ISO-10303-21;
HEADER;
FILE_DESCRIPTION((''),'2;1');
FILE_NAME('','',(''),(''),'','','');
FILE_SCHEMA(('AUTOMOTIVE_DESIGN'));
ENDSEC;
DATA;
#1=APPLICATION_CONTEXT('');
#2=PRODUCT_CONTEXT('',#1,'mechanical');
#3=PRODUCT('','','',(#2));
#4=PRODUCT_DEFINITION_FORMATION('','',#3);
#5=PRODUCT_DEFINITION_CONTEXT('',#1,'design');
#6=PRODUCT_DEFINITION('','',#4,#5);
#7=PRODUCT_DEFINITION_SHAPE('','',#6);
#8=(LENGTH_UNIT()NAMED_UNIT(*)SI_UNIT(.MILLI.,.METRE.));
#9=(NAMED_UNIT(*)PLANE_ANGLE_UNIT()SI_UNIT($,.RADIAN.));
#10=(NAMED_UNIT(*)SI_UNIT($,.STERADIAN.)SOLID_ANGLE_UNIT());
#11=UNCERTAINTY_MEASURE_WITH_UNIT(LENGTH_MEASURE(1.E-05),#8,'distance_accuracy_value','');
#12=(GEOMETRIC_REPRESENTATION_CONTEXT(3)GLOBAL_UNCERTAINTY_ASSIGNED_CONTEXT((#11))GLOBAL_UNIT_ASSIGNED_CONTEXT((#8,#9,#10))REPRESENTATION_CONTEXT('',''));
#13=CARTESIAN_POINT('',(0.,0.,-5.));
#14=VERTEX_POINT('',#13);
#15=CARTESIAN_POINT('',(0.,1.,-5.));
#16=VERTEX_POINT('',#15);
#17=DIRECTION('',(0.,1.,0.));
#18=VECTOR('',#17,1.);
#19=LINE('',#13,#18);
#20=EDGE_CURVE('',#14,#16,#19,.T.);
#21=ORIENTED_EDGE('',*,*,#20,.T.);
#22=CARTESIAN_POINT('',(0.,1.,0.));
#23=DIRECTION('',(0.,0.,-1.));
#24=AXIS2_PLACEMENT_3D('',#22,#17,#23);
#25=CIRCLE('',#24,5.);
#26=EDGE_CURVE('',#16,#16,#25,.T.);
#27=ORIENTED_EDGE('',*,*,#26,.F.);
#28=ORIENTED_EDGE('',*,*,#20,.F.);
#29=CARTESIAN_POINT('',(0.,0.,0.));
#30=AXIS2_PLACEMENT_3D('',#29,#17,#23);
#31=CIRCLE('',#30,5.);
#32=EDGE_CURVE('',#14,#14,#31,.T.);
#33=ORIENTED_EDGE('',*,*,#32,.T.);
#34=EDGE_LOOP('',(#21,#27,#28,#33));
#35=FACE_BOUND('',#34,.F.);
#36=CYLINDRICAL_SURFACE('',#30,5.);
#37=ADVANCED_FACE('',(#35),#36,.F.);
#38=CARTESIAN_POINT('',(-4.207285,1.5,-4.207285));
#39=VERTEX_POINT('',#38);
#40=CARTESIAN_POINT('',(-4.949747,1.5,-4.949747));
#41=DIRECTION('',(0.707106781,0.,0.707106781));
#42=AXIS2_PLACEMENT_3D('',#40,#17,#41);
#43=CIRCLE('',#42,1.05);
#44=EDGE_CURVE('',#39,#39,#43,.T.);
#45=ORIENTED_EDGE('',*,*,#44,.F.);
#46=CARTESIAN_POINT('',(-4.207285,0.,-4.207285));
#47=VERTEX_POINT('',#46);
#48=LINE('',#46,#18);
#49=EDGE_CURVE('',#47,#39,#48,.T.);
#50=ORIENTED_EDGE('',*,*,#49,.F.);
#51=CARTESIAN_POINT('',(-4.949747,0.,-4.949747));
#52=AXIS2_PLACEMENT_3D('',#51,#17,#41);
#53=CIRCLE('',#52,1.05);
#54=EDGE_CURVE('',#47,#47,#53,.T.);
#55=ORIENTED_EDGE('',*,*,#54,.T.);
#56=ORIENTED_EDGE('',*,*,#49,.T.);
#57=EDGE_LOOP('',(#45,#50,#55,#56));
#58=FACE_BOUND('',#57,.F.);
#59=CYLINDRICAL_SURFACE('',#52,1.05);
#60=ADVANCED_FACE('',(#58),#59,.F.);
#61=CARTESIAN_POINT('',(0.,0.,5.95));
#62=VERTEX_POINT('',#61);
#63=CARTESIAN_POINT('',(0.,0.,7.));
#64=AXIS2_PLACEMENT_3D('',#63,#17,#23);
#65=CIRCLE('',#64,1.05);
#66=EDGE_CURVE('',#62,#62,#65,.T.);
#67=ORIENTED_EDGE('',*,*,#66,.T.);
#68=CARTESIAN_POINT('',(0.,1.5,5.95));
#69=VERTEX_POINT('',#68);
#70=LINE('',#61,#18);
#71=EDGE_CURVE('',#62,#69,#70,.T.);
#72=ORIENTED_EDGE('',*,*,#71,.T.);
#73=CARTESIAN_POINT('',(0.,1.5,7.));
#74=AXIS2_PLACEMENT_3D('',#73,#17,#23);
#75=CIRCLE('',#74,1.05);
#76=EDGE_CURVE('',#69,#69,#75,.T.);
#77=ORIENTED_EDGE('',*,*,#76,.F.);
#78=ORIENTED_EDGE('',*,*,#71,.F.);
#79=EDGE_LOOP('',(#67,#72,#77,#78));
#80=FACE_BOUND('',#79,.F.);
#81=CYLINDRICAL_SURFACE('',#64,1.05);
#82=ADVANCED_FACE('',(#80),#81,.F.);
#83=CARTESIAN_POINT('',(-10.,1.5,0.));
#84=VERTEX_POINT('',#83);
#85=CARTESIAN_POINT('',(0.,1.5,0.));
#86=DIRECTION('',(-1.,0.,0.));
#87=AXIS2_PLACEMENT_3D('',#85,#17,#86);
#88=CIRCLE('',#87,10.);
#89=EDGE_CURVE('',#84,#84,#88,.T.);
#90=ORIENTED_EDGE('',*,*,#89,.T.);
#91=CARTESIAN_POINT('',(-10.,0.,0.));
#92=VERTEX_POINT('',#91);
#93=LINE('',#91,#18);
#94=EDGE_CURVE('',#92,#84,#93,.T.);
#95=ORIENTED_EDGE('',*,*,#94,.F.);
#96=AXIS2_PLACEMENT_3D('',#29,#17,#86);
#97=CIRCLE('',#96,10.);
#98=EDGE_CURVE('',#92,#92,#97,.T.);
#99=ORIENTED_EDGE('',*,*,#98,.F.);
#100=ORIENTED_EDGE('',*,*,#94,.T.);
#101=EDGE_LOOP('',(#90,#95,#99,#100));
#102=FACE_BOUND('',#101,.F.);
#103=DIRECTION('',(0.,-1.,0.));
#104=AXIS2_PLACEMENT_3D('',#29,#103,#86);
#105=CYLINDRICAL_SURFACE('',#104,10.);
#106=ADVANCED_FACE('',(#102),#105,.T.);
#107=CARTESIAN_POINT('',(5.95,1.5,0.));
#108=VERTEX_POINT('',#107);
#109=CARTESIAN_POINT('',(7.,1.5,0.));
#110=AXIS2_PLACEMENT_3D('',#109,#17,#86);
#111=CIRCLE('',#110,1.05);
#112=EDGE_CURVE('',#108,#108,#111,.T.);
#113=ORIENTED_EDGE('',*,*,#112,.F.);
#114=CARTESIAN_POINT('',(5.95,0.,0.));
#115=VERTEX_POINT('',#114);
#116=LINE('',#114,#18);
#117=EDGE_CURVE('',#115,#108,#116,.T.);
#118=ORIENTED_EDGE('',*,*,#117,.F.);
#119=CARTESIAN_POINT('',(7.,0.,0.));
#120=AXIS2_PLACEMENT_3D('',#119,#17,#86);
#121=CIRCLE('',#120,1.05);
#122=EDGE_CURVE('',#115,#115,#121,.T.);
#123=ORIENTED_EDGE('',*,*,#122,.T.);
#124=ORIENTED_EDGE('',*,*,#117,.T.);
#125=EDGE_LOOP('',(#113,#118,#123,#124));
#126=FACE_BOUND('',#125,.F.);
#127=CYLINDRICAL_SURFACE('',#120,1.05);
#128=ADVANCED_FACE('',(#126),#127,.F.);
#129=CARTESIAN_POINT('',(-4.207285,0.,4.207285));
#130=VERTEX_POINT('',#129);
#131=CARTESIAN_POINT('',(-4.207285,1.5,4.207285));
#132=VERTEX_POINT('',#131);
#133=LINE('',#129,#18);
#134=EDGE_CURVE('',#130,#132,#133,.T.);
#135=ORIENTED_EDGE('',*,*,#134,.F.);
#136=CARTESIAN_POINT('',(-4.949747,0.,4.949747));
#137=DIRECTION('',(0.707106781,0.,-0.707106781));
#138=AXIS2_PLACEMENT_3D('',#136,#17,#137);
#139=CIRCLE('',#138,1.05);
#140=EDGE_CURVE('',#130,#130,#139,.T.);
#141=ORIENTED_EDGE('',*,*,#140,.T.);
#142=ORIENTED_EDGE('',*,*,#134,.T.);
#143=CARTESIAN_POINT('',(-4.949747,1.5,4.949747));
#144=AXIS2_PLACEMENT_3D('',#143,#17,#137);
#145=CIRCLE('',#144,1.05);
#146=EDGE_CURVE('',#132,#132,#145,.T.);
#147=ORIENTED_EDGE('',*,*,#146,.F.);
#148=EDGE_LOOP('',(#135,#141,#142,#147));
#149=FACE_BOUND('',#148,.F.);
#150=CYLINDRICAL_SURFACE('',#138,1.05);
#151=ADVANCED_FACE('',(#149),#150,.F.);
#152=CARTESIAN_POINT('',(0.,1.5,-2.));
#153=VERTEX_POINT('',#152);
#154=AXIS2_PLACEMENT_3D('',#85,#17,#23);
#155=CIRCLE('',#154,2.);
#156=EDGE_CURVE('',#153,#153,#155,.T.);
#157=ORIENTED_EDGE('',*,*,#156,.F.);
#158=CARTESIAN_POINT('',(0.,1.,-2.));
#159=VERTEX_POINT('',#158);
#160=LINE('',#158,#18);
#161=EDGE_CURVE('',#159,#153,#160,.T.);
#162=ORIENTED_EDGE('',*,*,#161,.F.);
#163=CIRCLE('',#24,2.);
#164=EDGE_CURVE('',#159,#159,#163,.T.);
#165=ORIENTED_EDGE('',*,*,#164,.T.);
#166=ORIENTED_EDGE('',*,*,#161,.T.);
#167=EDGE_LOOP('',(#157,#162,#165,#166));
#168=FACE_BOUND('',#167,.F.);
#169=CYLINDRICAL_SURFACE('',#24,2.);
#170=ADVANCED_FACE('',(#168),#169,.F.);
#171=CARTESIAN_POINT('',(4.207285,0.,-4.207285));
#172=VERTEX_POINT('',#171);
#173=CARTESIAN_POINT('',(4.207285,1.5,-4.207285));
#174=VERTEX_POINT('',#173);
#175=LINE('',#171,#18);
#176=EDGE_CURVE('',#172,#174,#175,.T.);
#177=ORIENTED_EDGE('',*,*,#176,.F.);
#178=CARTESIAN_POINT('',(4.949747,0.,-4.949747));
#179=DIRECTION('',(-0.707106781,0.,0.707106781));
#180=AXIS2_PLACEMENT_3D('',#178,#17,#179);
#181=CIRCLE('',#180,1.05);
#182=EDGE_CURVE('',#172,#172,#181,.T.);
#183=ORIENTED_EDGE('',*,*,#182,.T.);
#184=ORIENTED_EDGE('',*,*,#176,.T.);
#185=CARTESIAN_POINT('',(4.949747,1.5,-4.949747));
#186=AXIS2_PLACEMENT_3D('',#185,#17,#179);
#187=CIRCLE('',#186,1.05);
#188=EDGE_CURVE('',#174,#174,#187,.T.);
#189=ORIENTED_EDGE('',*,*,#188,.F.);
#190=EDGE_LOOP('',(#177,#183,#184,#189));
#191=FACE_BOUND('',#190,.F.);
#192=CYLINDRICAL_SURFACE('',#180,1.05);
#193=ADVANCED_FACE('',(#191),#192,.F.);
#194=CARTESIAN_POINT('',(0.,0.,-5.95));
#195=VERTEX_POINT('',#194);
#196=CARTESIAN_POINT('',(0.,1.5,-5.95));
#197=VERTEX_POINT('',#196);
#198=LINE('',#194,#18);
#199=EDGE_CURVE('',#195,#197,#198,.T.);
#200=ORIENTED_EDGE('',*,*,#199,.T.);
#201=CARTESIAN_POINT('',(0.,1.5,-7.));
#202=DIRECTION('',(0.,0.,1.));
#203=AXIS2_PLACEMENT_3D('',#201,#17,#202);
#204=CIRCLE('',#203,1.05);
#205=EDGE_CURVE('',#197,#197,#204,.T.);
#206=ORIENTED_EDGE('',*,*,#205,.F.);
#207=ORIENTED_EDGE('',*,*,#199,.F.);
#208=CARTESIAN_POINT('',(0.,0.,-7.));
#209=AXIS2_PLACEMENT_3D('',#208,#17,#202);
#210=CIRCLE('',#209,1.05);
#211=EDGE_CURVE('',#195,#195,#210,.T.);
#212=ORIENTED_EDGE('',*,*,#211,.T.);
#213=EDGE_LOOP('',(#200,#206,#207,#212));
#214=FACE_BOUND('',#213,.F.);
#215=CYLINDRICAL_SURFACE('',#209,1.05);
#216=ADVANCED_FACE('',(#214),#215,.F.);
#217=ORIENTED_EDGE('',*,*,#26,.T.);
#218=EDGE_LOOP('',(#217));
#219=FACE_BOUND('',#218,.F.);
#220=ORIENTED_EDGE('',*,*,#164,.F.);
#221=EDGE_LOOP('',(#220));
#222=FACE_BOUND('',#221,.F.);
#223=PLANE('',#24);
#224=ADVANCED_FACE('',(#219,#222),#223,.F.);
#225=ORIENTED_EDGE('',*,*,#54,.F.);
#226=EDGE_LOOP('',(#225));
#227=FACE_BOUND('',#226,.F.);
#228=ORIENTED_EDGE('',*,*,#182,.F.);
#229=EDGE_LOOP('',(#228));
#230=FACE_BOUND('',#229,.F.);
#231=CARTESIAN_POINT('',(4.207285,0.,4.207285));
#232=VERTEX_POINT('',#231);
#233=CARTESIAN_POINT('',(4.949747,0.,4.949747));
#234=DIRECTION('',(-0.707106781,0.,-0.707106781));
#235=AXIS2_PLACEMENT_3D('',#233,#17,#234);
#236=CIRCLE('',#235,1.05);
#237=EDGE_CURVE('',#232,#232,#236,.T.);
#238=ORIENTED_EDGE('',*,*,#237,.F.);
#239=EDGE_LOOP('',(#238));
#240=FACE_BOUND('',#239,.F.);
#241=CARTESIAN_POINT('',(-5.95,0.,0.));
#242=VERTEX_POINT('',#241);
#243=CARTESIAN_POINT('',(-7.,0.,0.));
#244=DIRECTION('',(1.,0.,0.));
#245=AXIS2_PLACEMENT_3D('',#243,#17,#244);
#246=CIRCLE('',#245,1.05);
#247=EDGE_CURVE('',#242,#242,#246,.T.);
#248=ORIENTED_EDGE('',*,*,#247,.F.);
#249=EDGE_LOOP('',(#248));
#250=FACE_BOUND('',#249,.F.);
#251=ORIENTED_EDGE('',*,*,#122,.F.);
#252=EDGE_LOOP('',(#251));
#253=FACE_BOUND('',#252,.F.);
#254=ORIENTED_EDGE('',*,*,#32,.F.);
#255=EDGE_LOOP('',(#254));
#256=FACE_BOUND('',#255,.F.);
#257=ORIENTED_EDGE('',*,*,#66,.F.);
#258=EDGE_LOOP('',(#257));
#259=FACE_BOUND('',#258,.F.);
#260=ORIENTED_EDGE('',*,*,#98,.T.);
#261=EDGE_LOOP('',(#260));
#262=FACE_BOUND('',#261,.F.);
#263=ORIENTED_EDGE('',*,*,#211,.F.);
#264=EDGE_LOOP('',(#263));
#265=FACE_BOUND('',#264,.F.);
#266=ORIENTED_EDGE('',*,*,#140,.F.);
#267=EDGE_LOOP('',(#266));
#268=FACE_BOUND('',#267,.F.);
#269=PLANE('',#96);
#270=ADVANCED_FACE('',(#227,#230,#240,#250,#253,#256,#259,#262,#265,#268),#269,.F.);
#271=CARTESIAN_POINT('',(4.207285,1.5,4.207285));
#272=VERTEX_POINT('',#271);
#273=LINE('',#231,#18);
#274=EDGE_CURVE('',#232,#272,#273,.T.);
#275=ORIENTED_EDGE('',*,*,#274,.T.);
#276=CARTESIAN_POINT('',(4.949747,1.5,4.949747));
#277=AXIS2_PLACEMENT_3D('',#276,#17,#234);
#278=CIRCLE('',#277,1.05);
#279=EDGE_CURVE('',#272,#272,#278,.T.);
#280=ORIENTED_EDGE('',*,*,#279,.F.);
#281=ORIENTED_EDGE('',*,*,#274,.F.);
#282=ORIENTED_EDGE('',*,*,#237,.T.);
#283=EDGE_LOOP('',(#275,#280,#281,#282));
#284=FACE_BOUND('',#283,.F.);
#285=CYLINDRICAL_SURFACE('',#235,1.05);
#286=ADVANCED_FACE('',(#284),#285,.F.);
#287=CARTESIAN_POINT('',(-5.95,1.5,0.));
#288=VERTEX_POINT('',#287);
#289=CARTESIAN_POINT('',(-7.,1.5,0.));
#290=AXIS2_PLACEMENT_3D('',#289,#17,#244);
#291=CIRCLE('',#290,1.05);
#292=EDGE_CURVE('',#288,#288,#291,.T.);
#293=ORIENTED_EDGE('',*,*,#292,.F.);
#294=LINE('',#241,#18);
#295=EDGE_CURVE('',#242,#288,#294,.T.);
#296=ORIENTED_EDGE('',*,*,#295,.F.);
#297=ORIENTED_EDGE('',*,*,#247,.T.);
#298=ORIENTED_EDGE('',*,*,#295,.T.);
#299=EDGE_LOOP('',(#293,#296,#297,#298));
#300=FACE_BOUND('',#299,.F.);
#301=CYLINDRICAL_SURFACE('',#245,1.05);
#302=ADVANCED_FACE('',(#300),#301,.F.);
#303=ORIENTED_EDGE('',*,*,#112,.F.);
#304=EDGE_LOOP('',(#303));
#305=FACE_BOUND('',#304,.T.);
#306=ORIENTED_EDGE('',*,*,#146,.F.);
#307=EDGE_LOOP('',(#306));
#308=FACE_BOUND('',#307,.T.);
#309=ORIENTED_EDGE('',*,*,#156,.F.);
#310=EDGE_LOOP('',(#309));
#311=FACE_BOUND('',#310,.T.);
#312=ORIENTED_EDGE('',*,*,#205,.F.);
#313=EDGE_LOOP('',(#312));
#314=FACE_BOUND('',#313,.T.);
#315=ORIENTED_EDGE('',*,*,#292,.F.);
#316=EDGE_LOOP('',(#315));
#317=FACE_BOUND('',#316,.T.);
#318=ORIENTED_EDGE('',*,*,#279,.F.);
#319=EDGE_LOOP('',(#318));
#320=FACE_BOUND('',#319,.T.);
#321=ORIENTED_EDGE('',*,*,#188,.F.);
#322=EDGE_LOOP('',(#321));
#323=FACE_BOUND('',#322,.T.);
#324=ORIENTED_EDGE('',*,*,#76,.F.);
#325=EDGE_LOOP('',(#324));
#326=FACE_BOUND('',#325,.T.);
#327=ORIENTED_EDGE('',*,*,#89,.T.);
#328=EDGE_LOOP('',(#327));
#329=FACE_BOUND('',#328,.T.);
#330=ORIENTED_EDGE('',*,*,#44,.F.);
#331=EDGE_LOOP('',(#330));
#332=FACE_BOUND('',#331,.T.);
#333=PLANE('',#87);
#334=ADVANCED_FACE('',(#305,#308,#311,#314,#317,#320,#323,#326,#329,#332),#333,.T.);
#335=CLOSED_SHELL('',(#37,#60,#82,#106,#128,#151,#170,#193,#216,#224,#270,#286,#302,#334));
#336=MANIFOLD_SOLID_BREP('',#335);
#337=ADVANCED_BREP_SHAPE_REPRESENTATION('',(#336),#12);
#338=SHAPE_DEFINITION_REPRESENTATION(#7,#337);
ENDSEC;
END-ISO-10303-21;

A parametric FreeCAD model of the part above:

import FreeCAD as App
import Part
import Sketcher

V = App.Vector
Q = App.Units.Quantity

doc = App.newDocument("Part")
params = doc.addObject("Spreadsheet::Sheet", "Params")
for row, (alias, value) in enumerate([
    ("sketch1_diameter", "20 mm"),
    ("pad1_length", "1.5 mm"),
    ("sketch2_diameter", "4 mm"),
    ("hole_diameter", "4 mm"),
    ("hole_cbore_diameter", "10 mm"),
    ("hole_cbore_depth", "1 mm"),
    ("sketch3_diameter", "2.1 mm"),
    ("hole2_diameter", "2.1 mm"),
], start=1):
    params.set(f"A{row}", alias)
    params.set(f"B{row}", "=" + value)
    params.setAlias(f"B{row}", alias)

body = doc.addObject("PartDesign::Body", "Body")

# Sketch on XZ plane
sketch1 = doc.addObject("Sketcher::SketchObject", "Sketch")
body.addObject(sketch1)
sketch1.AttachmentSupport = (doc.XZ_Plane, [""])
sketch1.MapMode = "FlatFace"
sketch1.addGeometry(Part.Circle(V(0, 0, 0), V(0, 0, 1), 10), False)
sketch1.addConstraint(Sketcher.Constraint("Coincident", 0, 3, -1, 1))
sketch1.addConstraint(Sketcher.Constraint("Diameter", 0, Q("20 mm")))
sketch1.setExpression("Constraints[1]", "Params.sketch1_diameter")
pad1 = doc.addObject("PartDesign::Pad", "Pad")
body.addObject(pad1)
pad1.Profile = sketch1
pad1.setExpression("Length", "Params.pad1_length")
pad1.Reversed = True

# Sketch on XZ plane
sketch2 = doc.addObject("Sketcher::SketchObject", "Sketch001")
body.addObject(sketch2)
sketch2.AttachmentSupport = (doc.XZ_Plane, [""])
sketch2.MapMode = "FlatFace"
sketch2.addGeometry(Part.Circle(V(0, 0, 0), V(0, 0, 1), 2), False)
sketch2.addConstraint(Sketcher.Constraint("Coincident", 0, 3, -1, 1))
sketch2.addConstraint(Sketcher.Constraint("Diameter", 0, Q("4 mm")))
sketch2.setExpression("Constraints[1]", "Params.sketch2_diameter")
doc.recompute()
hole = doc.addObject("PartDesign::Hole", "Hole")
body.addObject(hole)
hole.Profile = sketch2
hole.ThreadType = "None"
hole.setExpression("Diameter", "Params.hole_diameter")
hole.DepthType = "ThroughAll"
hole.HoleCutType = "Counterbore"
hole.setExpression("HoleCutDiameter", "Params.hole_cbore_diameter")
hole.setExpression("HoleCutDepth", "Params.hole_cbore_depth")

# Sketch on XZ plane
sketch3 = doc.addObject("Sketcher::SketchObject", "Sketch002")
body.addObject(sketch3)
sketch3.AttachmentSupport = (doc.XZ_Plane, [""])
sketch3.MapMode = "FlatFace"
sketch3.addGeometry(Part.Circle(V(0, 7, 0), V(0, 0, 1), 1.1), False)
sketch3.addConstraint(Sketcher.Constraint("PointOnObject", 0, 3, -2))
sketch3.addConstraint(Sketcher.Constraint("Diameter", 0, Q("2.1 mm")))
sketch3.addConstraint(Sketcher.Constraint("DistanceY", -1, 1, 0, 3, Q("7 mm")))
sketch3.setExpression("Constraints[1]", "Params.sketch3_diameter")
doc.recompute()
hole2 = doc.addObject("PartDesign::Hole", "Hole001")
body.addObject(hole2)
hole2.Profile = sketch3
hole2.ThreadType = "None"
hole2.setExpression("Diameter", "Params.hole2_diameter")
hole2.DepthType = "ThroughAll"
doc.recompute()

polarpattern = doc.addObject("PartDesign::PolarPattern", "PolarPattern")
body.addObject(polarpattern)
polarpattern.Originals = [hole2]
polarpattern.Axis = (doc.Y_Axis, [""])
polarpattern.Angle = 360
polarpattern.Occurrences = 8
body.Tip = polarpattern

doc.recompute()
